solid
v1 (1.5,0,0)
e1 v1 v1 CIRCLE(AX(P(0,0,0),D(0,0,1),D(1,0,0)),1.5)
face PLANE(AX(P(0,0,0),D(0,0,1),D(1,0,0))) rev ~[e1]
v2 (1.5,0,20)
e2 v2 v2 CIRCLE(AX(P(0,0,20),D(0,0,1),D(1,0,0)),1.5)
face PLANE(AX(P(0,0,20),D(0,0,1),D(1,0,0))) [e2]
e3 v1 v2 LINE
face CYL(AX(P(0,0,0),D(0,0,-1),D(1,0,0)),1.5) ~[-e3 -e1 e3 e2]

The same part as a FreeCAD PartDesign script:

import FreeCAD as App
import Part
import Sketcher

V = App.Vector
Q = App.Units.Quantity

doc = App.newDocument("Part")
body = doc.addObject("PartDesign::Body", "Body")

sketch1 = body.newObject("Sketcher::SketchObject", "Sketch")
sketch1.AttachmentSupport = (doc.getObject("XY_Plane"), [""])
sketch1.MapMode = "FlatFace"
sketch1.addGeometry(Part.Circle(V(0, 0, 0), V(0, 0, 1), 1.5), False)
sketch1.addConstraint(Sketcher.Constraint("Coincident", 0, 3, -1, 1))
sketch1.addConstraint(Sketcher.Constraint("Diameter", 0, Q("3 mm")))
pad1 = body.newObject("PartDesign::Pad", "Pad")
pad1.Profile = sketch1
pad1.Length = 20

doc.recompute()
